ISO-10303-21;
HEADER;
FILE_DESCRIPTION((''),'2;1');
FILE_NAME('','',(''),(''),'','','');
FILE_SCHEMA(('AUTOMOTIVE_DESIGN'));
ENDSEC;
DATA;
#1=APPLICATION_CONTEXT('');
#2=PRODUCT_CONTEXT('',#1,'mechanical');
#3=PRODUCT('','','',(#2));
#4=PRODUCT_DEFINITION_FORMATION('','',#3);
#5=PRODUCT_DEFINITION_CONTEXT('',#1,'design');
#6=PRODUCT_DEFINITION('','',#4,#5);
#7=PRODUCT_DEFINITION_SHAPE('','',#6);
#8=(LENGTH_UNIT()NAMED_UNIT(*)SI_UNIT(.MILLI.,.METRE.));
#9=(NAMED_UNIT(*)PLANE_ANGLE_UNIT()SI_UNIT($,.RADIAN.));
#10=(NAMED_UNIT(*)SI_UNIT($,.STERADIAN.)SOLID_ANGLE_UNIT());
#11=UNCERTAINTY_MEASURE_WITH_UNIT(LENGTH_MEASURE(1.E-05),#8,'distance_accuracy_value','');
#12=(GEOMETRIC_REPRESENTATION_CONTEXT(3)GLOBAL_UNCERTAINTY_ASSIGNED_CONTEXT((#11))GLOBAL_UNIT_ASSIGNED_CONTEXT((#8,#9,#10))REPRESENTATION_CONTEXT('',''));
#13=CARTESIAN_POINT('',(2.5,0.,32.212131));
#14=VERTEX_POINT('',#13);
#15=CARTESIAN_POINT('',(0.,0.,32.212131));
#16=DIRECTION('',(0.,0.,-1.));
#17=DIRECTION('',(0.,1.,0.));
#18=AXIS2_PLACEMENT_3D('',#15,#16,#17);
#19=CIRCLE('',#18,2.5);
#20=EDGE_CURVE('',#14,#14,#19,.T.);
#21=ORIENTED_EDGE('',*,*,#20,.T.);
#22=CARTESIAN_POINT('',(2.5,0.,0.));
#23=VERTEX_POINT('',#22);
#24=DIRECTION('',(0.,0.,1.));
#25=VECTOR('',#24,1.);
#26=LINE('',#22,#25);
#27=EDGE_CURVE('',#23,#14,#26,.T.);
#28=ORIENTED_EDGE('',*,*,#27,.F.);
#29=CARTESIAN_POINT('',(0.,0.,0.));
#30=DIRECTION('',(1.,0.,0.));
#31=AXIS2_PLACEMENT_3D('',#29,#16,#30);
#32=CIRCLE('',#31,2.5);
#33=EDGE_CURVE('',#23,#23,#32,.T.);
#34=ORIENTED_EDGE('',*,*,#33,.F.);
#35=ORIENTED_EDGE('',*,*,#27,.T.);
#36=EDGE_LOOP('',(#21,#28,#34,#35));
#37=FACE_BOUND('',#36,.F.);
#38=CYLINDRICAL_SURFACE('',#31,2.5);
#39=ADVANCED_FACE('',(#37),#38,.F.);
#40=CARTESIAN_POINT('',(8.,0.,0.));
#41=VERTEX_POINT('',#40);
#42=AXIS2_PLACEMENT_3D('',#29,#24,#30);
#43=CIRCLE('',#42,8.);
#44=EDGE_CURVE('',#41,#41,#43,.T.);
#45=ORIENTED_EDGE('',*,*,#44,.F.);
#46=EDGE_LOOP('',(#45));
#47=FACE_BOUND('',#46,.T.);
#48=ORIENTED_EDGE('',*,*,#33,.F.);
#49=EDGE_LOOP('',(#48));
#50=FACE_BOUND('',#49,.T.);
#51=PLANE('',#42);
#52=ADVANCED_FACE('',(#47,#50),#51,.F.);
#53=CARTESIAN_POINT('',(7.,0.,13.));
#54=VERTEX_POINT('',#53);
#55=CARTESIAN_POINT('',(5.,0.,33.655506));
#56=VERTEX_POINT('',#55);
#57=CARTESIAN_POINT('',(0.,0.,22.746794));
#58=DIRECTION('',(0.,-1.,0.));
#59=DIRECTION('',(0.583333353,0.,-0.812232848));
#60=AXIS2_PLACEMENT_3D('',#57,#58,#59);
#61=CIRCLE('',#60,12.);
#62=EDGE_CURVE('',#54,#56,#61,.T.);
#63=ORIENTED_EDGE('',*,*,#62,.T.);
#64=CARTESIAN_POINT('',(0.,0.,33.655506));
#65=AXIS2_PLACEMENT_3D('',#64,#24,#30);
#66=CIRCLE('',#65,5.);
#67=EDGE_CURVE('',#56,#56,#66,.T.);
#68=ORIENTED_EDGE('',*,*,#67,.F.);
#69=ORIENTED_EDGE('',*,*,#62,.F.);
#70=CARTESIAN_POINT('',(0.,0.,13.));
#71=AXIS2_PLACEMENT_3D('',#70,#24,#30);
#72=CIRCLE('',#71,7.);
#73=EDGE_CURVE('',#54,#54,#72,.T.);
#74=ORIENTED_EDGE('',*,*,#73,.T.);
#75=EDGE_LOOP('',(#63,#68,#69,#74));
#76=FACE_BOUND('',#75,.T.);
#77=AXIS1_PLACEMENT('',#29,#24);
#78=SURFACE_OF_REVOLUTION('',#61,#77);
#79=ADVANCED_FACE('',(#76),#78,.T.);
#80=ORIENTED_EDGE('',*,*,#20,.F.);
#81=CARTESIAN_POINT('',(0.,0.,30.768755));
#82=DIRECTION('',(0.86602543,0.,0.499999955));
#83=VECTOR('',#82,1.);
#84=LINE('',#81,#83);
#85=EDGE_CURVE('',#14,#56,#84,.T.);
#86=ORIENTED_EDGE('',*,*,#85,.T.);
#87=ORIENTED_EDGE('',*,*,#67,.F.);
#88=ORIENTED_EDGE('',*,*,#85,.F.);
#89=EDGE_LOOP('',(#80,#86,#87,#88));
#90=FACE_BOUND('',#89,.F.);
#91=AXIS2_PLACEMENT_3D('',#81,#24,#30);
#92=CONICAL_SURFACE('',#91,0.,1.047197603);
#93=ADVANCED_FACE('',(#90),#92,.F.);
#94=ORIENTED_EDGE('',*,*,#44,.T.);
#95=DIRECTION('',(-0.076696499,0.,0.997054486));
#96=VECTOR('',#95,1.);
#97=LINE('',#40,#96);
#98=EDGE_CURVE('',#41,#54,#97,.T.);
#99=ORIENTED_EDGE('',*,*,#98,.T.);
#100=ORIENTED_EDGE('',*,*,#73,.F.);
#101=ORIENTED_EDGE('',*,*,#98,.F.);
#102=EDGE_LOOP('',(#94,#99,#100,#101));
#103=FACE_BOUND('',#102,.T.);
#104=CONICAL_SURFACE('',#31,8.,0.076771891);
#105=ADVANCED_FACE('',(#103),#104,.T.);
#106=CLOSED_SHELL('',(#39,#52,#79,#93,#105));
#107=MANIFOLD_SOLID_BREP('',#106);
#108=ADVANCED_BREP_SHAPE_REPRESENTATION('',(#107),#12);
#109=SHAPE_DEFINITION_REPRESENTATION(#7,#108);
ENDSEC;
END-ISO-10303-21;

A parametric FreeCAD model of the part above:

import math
import FreeCAD as App
import Part
import Sketcher

V = App.Vector
Q = App.Units.Quantity

doc = App.newDocument("Part")
body = doc.addObject("PartDesign::Body", "Body")

# Sketch on XZ plane
sketch1 = body.newObject("Sketcher::SketchObject", "Sketch")
sketch1.AttachmentSupport = (doc.getObject("XZ_Plane"), [""])
sketch1.MapMode = "FlatFace"
sketch1.addGeometry(Part.LineSegment(V(0, 0, 0), V(8, 0, 0)), False)
sketch1.addGeometry(Part.LineSegment(V(8, 0, 0), V(7, 13, 0)), False)
sketch1.addGeometry(Part.ArcOfCircle(Part.Circle(V(0, 23, 0), V(0, 0, 1), 12), math.radians(-54), math.radians(65)), False)
sketch1.addGeometry(Part.LineSegment(V(5, 34, 0), V(0, 31, 0)), False)
sketch1.addGeometry(Part.LineSegment(V(0, 31, 0), V(0, 0, 0)), False)
sketch1.addConstraint(Sketcher.Constraint("Coincident", 0, 2, 1, 1))
sketch1.addConstraint(Sketcher.Constraint("Coincident", 1, 2, 2, 1))
sketch1.addConstraint(Sketcher.Constraint("Coincident", 2, 2, 3, 1))
sketch1.addConstraint(Sketcher.Constraint("Coincident", 3, 2, 4, 1))
sketch1.addConstraint(Sketcher.Constraint("Coincident", 4, 2, 0, 1))
sketch1.addConstraint(Sketcher.Constraint("Horizontal", 0))
sketch1.addConstraint(Sketcher.Constraint("Vertical", 4))
sketch1.addConstraint(Sketcher.Constraint("Coincident", 4, 2, -1, 1))
sketch1.addConstraint(Sketcher.Constraint("PointOnObject", 2, 3, -2))
sketch1.addConstraint(Sketcher.Constraint("Radius", 2, Q("12 mm")))
sketch1.addConstraint(Sketcher.Constraint("DistanceX", 0, 1, 0, 2, Q("8 mm")))
sketch1.addConstraint(Sketcher.Constraint("Angle", 3, Q("-150.000003 deg")))
sketch1.addConstraint(Sketcher.Constraint("DistanceX", -1, 1, 1, 2, Q("7 mm")))
sketch1.addConstraint(Sketcher.Constraint("DistanceY", -1, 1, 1, 2, Q("13 mm")))
sketch1.addConstraint(Sketcher.Constraint("DistanceX", -1, 1, 2, 2, Q("5 mm")))
revolution = body.newObject("PartDesign::Revolution", "Revolution")
revolution.Profile = sketch1
revolution.ReferenceAxis = (sketch1, ["V_Axis"])
revolution.Angle = 360

# Sketch on XY plane
sketch2 = body.newObject("Sketcher::SketchObject", "Sketch001")
sketch2.AttachmentSupport = (doc.getObject("XY_Plane"), [""])
sketch2.MapMode = "FlatFace"
sketch2.addGeometry(Part.Circle(V(0, 0, 0), V(0, 0, 1), 2.5), False)
sketch2.addConstraint(Sketcher.Constraint("Coincident", 0, 3, -1, 1))
sketch2.addConstraint(Sketcher.Constraint("Diameter", 0, Q("5 mm")))
pocket1 = body.newObject("PartDesign::Pocket", "Pocket")
pocket1.Profile = sketch2
pocket1.Type = "ThroughAll"
pocket1.Reversed = True

doc.recompute()
